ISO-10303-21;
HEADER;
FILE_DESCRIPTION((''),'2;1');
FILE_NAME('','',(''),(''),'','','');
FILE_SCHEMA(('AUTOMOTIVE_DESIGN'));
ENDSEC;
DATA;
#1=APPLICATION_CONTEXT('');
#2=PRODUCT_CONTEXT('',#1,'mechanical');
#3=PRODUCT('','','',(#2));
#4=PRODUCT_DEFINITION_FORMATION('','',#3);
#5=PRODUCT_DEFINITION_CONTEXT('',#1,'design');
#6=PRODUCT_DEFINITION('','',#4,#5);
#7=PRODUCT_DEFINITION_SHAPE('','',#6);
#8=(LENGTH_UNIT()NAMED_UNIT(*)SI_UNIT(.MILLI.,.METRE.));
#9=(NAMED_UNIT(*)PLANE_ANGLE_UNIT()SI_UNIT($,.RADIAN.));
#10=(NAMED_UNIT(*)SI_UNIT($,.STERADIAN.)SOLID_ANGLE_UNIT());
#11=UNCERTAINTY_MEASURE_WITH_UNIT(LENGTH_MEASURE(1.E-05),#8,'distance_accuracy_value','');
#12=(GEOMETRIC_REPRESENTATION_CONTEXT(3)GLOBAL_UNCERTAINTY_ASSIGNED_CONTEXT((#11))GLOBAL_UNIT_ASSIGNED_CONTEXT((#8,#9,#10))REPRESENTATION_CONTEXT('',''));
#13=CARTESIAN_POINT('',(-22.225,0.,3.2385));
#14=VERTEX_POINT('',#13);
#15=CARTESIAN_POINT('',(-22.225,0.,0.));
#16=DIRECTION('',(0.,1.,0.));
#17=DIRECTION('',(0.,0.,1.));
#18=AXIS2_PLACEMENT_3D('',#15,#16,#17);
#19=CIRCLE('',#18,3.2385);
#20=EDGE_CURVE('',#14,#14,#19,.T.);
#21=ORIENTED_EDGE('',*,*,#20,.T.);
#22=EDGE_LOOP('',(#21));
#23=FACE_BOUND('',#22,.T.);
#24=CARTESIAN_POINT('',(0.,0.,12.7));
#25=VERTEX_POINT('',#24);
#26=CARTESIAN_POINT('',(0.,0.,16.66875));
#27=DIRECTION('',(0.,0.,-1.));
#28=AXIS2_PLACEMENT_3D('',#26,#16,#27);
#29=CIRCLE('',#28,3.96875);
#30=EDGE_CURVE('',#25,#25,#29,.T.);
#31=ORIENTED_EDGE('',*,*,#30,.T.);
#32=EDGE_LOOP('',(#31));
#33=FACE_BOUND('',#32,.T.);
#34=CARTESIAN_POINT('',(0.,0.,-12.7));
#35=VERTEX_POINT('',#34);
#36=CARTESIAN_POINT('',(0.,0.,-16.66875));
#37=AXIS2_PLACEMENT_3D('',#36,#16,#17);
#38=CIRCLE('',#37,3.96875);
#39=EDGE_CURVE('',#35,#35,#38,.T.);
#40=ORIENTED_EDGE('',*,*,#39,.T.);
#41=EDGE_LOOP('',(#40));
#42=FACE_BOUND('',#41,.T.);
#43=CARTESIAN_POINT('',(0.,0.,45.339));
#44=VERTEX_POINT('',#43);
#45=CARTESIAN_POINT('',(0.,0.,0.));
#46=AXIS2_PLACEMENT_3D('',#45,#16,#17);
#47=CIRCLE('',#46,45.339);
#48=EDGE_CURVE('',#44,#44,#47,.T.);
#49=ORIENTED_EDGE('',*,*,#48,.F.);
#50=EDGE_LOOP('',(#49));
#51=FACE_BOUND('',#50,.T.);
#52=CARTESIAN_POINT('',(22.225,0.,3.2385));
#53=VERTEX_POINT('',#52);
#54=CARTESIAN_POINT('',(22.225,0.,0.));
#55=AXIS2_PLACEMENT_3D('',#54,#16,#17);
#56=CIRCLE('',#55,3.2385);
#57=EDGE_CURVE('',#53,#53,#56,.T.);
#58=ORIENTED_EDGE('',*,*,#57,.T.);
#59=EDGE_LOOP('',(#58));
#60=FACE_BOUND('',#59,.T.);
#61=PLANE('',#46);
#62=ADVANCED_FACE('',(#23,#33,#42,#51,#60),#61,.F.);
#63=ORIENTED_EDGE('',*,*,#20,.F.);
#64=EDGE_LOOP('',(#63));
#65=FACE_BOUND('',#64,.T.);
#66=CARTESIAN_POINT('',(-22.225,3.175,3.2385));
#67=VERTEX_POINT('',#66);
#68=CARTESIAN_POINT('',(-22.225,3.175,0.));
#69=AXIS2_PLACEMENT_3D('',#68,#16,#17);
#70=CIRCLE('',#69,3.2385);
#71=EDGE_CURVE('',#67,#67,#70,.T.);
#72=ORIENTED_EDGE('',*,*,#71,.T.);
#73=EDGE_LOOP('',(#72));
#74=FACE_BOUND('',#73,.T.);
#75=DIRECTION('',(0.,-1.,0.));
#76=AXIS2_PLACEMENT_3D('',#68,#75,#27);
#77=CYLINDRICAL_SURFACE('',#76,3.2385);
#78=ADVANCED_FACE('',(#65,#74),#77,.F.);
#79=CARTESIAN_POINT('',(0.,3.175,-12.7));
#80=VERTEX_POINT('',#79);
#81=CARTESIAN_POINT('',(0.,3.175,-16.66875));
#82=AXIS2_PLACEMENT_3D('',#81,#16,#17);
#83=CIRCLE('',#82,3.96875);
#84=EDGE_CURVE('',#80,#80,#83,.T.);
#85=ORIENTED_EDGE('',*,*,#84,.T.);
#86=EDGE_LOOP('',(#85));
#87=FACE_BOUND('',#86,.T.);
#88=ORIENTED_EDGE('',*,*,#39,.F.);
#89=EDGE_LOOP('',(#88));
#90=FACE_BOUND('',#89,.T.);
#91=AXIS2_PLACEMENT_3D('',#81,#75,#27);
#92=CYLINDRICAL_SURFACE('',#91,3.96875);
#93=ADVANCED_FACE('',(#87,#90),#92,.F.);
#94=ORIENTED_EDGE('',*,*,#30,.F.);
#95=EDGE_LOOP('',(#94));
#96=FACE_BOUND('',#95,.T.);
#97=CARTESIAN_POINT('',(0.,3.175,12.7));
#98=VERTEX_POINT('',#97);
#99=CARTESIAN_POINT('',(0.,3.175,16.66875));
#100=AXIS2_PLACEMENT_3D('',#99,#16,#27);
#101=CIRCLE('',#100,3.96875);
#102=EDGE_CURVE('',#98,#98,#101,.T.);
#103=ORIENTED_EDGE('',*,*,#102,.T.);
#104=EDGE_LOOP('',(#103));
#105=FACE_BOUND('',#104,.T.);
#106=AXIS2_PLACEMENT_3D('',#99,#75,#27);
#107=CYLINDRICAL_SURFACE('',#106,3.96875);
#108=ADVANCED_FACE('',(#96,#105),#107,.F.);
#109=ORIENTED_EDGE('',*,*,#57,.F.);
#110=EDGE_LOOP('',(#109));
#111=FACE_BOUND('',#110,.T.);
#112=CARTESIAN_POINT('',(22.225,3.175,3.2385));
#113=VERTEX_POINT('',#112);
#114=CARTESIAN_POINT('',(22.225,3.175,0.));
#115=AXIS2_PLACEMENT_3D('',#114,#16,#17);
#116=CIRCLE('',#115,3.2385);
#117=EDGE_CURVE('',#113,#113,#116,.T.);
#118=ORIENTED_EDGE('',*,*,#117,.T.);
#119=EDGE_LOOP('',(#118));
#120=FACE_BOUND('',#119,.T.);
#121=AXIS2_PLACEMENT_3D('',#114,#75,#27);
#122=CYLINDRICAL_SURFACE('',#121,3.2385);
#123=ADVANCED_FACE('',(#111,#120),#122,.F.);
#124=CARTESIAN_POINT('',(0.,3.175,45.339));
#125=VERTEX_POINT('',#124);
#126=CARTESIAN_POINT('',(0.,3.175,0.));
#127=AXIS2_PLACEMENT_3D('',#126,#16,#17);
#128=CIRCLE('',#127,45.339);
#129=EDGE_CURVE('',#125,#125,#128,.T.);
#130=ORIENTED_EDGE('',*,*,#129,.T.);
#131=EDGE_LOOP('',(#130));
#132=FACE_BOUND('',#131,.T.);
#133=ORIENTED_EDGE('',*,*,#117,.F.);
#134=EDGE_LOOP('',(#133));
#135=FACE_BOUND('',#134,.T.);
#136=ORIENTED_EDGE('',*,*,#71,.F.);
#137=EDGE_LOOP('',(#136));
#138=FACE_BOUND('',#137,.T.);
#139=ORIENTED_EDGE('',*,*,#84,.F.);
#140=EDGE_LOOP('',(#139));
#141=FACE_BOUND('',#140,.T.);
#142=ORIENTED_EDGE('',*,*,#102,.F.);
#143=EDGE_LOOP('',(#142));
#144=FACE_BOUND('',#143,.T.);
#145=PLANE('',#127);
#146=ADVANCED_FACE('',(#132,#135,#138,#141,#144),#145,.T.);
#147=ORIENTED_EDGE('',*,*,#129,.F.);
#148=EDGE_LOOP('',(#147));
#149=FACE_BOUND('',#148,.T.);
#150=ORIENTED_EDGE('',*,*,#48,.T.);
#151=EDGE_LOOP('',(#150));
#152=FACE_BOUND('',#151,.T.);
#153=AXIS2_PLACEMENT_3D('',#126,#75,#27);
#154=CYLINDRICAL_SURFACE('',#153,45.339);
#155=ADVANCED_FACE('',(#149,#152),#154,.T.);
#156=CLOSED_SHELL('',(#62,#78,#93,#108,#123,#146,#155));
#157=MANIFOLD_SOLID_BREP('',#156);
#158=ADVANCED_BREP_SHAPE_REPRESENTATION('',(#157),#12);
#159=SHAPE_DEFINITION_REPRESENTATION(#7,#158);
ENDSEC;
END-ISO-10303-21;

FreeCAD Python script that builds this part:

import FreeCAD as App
import Part
import Sketcher
from FreeCAD import Vector
Q = App.Units.Quantity

doc = App.newDocument("Part")
body = doc.addObject("PartDesign::Body", "Body")

# Sketch on XZ plane
sketch1 = body.newObject("Sketcher::SketchObject", "Sketch")
sketch1.AttachmentSupport = (doc.getObject("XZ_Plane"), [""])
sketch1.MapMode = "FlatFace"
sketch1.addGeometry([
    Part.Circle(Vector(0, 0, 0), Vector(0, 0, 1), 45.3),  # 0
    Part.Circle(Vector(0, 16.7, 0), Vector(0, 0, 1), 4),  # 1
    Part.Circle(Vector(-22.2, 0, 0), Vector(0, 0, 1), 3.2),  # 2
    Part.Circle(Vector(22.2, 0, 0), Vector(0, 0, 1), 3.2),  # 3
    Part.Circle(Vector(0, -16.7, 0), Vector(0, 0, 1), 4),  # 4
], False)
sketch1.addConstraint([
    Sketcher.Constraint("Coincident", 0, 3, -1, 1),
    Sketcher.Constraint("Equal", 2, 3),
    Sketcher.Constraint("Equal", 1, 4),
    Sketcher.Constraint("Symmetric", 2, 3, 3, 3, -1, 1),
    Sketcher.Constraint("Symmetric", 1, 3, 4, 3, -1, 1),
    Sketcher.Constraint("PointOnObject", 1, 3, -2),
    Sketcher.Constraint("PointOnObject", 2, 3, -1),
    Sketcher.Constraint("Diameter", 0, Q("3.57 in")),
    Sketcher.Constraint("Diameter", 1, Q("0.3125 in")),
    Sketcher.Constraint("Diameter", 2, Q("0.255 in")),
    Sketcher.Constraint("DistanceX", 2, 3, 3, 3, Q("1.75 in")),
    Sketcher.Constraint("DistanceY", -1, 1, 1, 3, Q("0.65625 in")),
])
pad1 = body.newObject("PartDesign::Pad", "Pad")
pad1.Profile = sketch1
pad1.Length = Q("0.125 in")
pad1.Reversed = True

doc.recompute()
